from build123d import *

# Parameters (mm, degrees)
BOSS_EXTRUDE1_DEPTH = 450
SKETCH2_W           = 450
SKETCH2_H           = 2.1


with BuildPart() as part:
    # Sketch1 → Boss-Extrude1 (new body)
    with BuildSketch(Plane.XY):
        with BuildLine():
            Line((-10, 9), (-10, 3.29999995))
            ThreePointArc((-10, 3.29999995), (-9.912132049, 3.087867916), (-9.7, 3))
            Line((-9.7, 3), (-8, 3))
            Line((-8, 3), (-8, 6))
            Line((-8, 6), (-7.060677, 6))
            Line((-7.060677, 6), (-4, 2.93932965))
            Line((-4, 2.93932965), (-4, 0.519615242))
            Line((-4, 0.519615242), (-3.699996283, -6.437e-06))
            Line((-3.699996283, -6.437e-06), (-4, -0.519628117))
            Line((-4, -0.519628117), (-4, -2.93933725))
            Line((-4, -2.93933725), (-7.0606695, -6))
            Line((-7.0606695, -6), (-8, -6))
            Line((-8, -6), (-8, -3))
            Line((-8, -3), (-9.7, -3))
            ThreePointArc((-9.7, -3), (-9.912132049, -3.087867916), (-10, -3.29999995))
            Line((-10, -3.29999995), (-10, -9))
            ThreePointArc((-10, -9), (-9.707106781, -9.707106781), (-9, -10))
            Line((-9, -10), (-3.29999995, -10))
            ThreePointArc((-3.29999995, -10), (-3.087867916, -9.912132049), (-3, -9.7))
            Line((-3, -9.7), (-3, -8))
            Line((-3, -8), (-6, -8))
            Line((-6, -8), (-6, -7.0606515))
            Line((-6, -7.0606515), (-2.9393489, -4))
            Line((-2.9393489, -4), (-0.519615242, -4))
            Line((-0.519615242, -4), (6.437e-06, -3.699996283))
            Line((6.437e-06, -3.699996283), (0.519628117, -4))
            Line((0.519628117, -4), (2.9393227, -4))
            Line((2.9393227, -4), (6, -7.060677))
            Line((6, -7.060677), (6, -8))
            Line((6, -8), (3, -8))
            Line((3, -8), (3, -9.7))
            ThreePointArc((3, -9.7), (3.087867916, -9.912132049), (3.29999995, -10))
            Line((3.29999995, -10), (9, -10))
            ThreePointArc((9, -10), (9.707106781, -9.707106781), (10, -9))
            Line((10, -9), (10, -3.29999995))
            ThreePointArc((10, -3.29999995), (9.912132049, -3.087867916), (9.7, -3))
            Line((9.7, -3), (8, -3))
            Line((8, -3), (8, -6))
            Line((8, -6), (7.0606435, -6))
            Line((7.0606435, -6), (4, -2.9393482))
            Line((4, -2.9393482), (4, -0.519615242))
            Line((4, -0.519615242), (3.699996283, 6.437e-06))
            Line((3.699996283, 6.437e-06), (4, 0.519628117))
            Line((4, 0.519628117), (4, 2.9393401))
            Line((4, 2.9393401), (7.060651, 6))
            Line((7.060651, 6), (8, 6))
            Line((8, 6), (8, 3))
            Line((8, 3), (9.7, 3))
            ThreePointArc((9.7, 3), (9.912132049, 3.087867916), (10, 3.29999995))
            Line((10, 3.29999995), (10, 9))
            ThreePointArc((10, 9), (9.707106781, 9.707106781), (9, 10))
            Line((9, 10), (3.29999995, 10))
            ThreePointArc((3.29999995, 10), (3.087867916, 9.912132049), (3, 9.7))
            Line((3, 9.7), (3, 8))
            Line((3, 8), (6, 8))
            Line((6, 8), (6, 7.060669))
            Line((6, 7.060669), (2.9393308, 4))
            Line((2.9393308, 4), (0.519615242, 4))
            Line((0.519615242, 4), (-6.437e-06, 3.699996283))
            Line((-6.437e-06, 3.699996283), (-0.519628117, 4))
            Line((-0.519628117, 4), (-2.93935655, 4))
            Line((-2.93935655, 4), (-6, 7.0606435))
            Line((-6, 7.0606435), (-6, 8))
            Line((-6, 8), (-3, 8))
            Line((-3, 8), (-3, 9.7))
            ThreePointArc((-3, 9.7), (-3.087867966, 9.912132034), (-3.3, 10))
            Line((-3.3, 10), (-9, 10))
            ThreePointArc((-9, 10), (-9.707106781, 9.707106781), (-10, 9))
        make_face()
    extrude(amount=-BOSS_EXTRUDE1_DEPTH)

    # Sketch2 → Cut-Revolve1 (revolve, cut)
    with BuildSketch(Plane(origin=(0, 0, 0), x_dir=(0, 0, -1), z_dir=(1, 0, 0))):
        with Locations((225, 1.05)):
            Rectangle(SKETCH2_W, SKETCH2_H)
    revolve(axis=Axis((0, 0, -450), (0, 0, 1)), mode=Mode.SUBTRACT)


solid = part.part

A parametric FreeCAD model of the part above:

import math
import FreeCAD as App
import Part
import Sketcher
Q = App.Units.Quantity


def add_polygon(sketch, points):
    """Adds a closed chain of lines whose ends are joined by coincident constraints."""
    first, n = sketch.GeometryCount, len(points)
    for a, b in zip(points, points[1:] + points[:1]):
        sketch.addGeometry(Part.LineSegment(App.Vector(*a, 0), App.Vector(*b, 0)), False)
    for i in range(n):
        sketch.addConstraint(Sketcher.Constraint("Coincident", first + i, 2, first + (i + 1) % n, 1))

doc = App.newDocument("Part")
params = doc.addObject("Spreadsheet::Sheet", "Params")
for row, (alias, value) in enumerate([
    ("sketch1_radius", "1 mm"),
    ("sketch1_radius2", "0.3 mm"),
    ("sketch1_width", "3 mm"),
    ("sketch1_width2", "1.7 mm"),
    ("sketch1_width3", "5.7 mm"),
    ("pad1_length", "450 mm"),
    ("sketch2_height", "450 mm"),
    ("sketch2_width", "2.1 mm"),
    ("groove_angle", "360 deg"),
], start=1):
    params.set(f"A{row}", alias)
    params.set(f"B{row}", "=" + value)
    params.setAlias(f"B{row}", alias)

body = doc.addObject("PartDesign::Body", "Body")

# Sketch on XY plane
sketch1 = body.newObject("Sketcher::SketchObject", "Sketch")
sketch1.AttachmentSupport = (doc.getObject("XY_Plane"), [""])
sketch1.MapMode = "FlatFace"
sketch1.addGeometry([
    Part.LineSegment(App.Vector(-10, 9, 0), App.Vector(-10, 3.3, 0)),  # 0
    Part.ArcOfCircle(Part.Circle(App.Vector(-9.7, 3.3, 0), App.Vector(0, 0, 1), 0.3), math.radians(180), math.radians(270)),  # 1
    Part.LineSegment(App.Vector(-9.7, 3, 0), App.Vector(-8, 3, 0)),  # 2
    Part.LineSegment(App.Vector(-8, 3, 0), App.Vector(-8, 6, 0)),  # 3
    Part.LineSegment(App.Vector(-8, 6, 0), App.Vector(-7.06, 6, 0)),  # 4
    Part.LineSegment(App.Vector(-7.06, 6, 0), App.Vector(-4, 2.94, 0)),  # 5
    Part.LineSegment(App.Vector(-4, 2.94, 0), App.Vector(-4, 0.52, 0)),  # 6
    Part.LineSegment(App.Vector(-4, 0.52, 0), App.Vector(-3.7, 0, 0)),  # 7
    Part.LineSegment(App.Vector(-3.7, 0, 0), App.Vector(-4, -0.52, 0)),  # 8
    Part.LineSegment(App.Vector(-4, -0.52, 0), App.Vector(-4, -2.94, 0)),  # 9
    Part.LineSegment(App.Vector(-4, -2.94, 0), App.Vector(-7.06, -6, 0)),  # 10
    Part.LineSegment(App.Vector(-7.06, -6, 0), App.Vector(-8, -6, 0)),  # 11
    Part.LineSegment(App.Vector(-8, -6, 0), App.Vector(-8, -3, 0)),  # 12
    Part.LineSegment(App.Vector(-8, -3, 0), App.Vector(-9.7, -3, 0)),  # 13
    Part.ArcOfCircle(Part.Circle(App.Vector(-9.7, -3.3, 0), App.Vector(0, 0, 1), 0.3), math.radians(90), math.radians(180)),  # 14
    Part.LineSegment(App.Vector(-10, -3.3, 0), App.Vector(-10, -9, 0)),  # 15
    Part.ArcOfCircle(Part.Circle(App.Vector(-9, -9, 0), App.Vector(0, 0, 1), 1), math.radians(-180), math.radians(-90)),  # 16
    Part.LineSegment(App.Vector(-9, -10, 0), App.Vector(-3.3, -10, 0)),  # 17
    Part.ArcOfCircle(Part.Circle(App.Vector(-3.3, -9.7, 0), App.Vector(0, 0, 1), 0.3), math.radians(-90), math.radians(0)),  # 18
    Part.LineSegment(App.Vector(-3, -9.7, 0), App.Vector(-3, -8, 0)),  # 19
    Part.LineSegment(App.Vector(-3, -8, 0), App.Vector(-6, -8, 0)),  # 20
    Part.LineSegment(App.Vector(-6, -8, 0), App.Vector(-6, -7.06, 0)),  # 21
    Part.LineSegment(App.Vector(-6, -7.06, 0), App.Vector(-2.94, -4, 0)),  # 22
    Part.LineSegment(App.Vector(-2.94, -4, 0), App.Vector(-0.52, -4, 0)),  # 23
    Part.LineSegment(App.Vector(-0.52, -4, 0), App.Vector(0, -3.7, 0)),  # 24
    Part.LineSegment(App.Vector(0, -3.7, 0), App.Vector(0.52, -4, 0)),  # 25
    Part.LineSegment(App.Vector(0.52, -4, 0), App.Vector(2.94, -4, 0)),  # 26
    Part.LineSegment(App.Vector(2.94, -4, 0), App.Vector(6, -7.06, 0)),  # 27
    Part.LineSegment(App.Vector(6, -7.06, 0), App.Vector(6, -8, 0)),  # 28
    Part.LineSegment(App.Vector(6, -8, 0), App.Vector(3, -8, 0)),  # 29
    Part.LineSegment(App.Vector(3, -8, 0), App.Vector(3, -9.7, 0)),  # 30
    Part.ArcOfCircle(Part.Circle(App.Vector(3.3, -9.7, 0), App.Vector(0, 0, 1), 0.3), math.radians(180), math.radians(270)),  # 31
    Part.LineSegment(App.Vector(3.3, -10, 0), App.Vector(9, -10, 0)),  # 32
    Part.ArcOfCircle(Part.Circle(App.Vector(9, -9, 0), App.Vector(0, 0, 1), 1), math.radians(-90), math.radians(0)),  # 33
    Part.LineSegment(App.Vector(10, -9, 0), App.Vector(10, -3.3, 0)),  # 34
    Part.ArcOfCircle(Part.Circle(App.Vector(9.7, -3.3, 0), App.Vector(0, 0, 1), 0.3), math.radians(0), math.radians(90)),  # 35
    Part.LineSegment(App.Vector(9.7, -3, 0), App.Vector(8, -3, 0)),  # 36
    Part.LineSegment(App.Vector(8, -3, 0), App.Vector(8, -6, 0)),  # 37
    Part.LineSegment(App.Vector(8, -6, 0), App.Vector(7.06, -6, 0)),  # 38
    Part.LineSegment(App.Vector(7.06, -6, 0), App.Vector(4, -2.94, 0)),  # 39
    Part.LineSegment(App.Vector(4, -2.94, 0), App.Vector(4, -0.52, 0)),  # 40
    Part.LineSegment(App.Vector(4, -0.52, 0), App.Vector(3.7, 0, 0)),  # 41
    Part.LineSegment(App.Vector(3.7, 0, 0), App.Vector(4, 0.52, 0)),  # 42
    Part.LineSegment(App.Vector(4, 0.52, 0), App.Vector(4, 2.94, 0)),  # 43
    Part.LineSegment(App.Vector(4, 2.94, 0), App.Vector(7.06, 6, 0)),  # 44
    Part.LineSegment(App.Vector(7.06, 6, 0), App.Vector(8, 6, 0)),  # 45
    Part.LineSegment(App.Vector(8, 6, 0), App.Vector(8, 3, 0)),  # 46
    Part.LineSegment(App.Vector(8, 3, 0), App.Vector(9.7, 3, 0)),  # 47
    Part.ArcOfCircle(Part.Circle(App.Vector(9.7, 3.3, 0), App.Vector(0, 0, 1), 0.3), math.radians(-90), math.radians(0)),  # 48
    Part.LineSegment(App.Vector(10, 3.3, 0), App.Vector(10, 9, 0)),  # 49
    Part.ArcOfCircle(Part.Circle(App.Vector(9, 9, 0), App.Vector(0, 0, 1), 1), math.radians(0), math.radians(90)),  # 50
    Part.LineSegment(App.Vector(9, 10, 0), App.Vector(3.3, 10, 0)),  # 51
    Part.ArcOfCircle(Part.Circle(App.Vector(3.3, 9.7, 0), App.Vector(0, 0, 1), 0.3), math.radians(90), math.radians(180)),  # 52
    Part.LineSegment(App.Vector(3, 9.7, 0), App.Vector(3, 8, 0)),  # 53
    Part.LineSegment(App.Vector(3, 8, 0), App.Vector(6, 8, 0)),  # 54
    Part.LineSegment(App.Vector(6, 8, 0), App.Vector(6, 7.06, 0)),  # 55
    Part.LineSegment(App.Vector(6, 7.06, 0), App.Vector(2.94, 4, 0)),  # 56
    Part.LineSegment(App.Vector(2.94, 4, 0), App.Vector(0.52, 4, 0)),  # 57
    Part.LineSegment(App.Vector(0.52, 4, 0), App.Vector(0, 3.7, 0)),  # 58
    Part.LineSegment(App.Vector(0, 3.7, 0), App.Vector(-0.52, 4, 0)),  # 59
    Part.LineSegment(App.Vector(-0.52, 4, 0), App.Vector(-2.94, 4, 0)),  # 60
    Part.LineSegment(App.Vector(-2.94, 4, 0), App.Vector(-6, 7.06, 0)),  # 61
    Part.LineSegment(App.Vector(-6, 7.06, 0), App.Vector(-6, 8, 0)),  # 62
    Part.LineSegment(App.Vector(-6, 8, 0), App.Vector(-3, 8, 0)),  # 63
    Part.LineSegment(App.Vector(-3, 8, 0), App.Vector(-3, 9.7, 0)),  # 64
    Part.ArcOfCircle(Part.Circle(App.Vector(-3.3, 9.7, 0), App.Vector(0, 0, 1), 0.3), math.radians(0), math.radians(90)),  # 65
    Part.LineSegment(App.Vector(-3.3, 10, 0), App.Vector(-9, 10, 0)),  # 66
    Part.ArcOfCircle(Part.Circle(App.Vector(-9, 9, 0), App.Vector(0, 0, 1), 1), math.radians(90), math.radians(180)),  # 67
], False)
sketch1.addConstraint([
    Sketcher.Constraint("Tangent", 0, 2, 1, 1),
    Sketcher.Constraint("Tangent", 1, 2, 2, 1),
    Sketcher.Constraint("Coincident", 2, 2, 3, 1),
    Sketcher.Constraint("Coincident", 3, 2, 4, 1),
    Sketcher.Constraint("Coincident", 4, 2, 5, 1),
    Sketcher.Constraint("Coincident", 5, 2, 6, 1),
    Sketcher.Constraint("Coincident", 6, 2, 7, 1),
    Sketcher.Constraint("Coincident", 7, 2, 8, 1),
    Sketcher.Constraint("Coincident", 8, 2, 9, 1),
    Sketcher.Constraint("Coincident", 9, 2, 10, 1),
    Sketcher.Constraint("Coincident", 10, 2, 11, 1),
    Sketcher.Constraint("Coincident", 11, 2, 12, 1),
    Sketcher.Constraint("Coincident", 12, 2, 13, 1),
    Sketcher.Constraint("Tangent", 13, 2, 14, 1),
    Sketcher.Constraint("Tangent", 14, 2, 15, 1),
    Sketcher.Constraint("Tangent", 15, 2, 16, 1),
    Sketcher.Constraint("Tangent", 16, 2, 17, 1),
    Sketcher.Constraint("Tangent", 17, 2, 18, 1),
    Sketcher.Constraint("Tangent", 18, 2, 19, 1),
    Sketcher.Constraint("Coincident", 19, 2, 20, 1),
    Sketcher.Constraint("Coincident", 20, 2, 21, 1),
    Sketcher.Constraint("Coincident", 21, 2, 22, 1),
    Sketcher.Constraint("Coincident", 22, 2, 23, 1),
    Sketcher.Constraint("Coincident", 23, 2, 24, 1),
    Sketcher.Constraint("Coincident", 24, 2, 25, 1),
    Sketcher.Constraint("Coincident", 25, 2, 26, 1),
    Sketcher.Constraint("Coincident", 26, 2, 27, 1),
    Sketcher.Constraint("Coincident", 27, 2, 28, 1),
    Sketcher.Constraint("Coincident", 28, 2, 29, 1),
    Sketcher.Constraint("Coincident", 29, 2, 30, 1),
    Sketcher.Constraint("Tangent", 30, 2, 31, 1),
    Sketcher.Constraint("Tangent", 31, 2, 32, 1),
    Sketcher.Constraint("Tangent", 32, 2, 33, 1),
    Sketcher.Constraint("Tangent", 33, 2, 34, 1),
    Sketcher.Constraint("Tangent", 34, 2, 35, 1),
    Sketcher.Constraint("Tangent", 35, 2, 36, 1),
    Sketcher.Constraint("Coincident", 36, 2, 37, 1),
    Sketcher.Constraint("Coincident", 37, 2, 38, 1),
    Sketcher.Constraint("Coincident", 38, 2, 39, 1),
    Sketcher.Constraint("Coincident", 39, 2, 40, 1),
    Sketcher.Constraint("Coincident", 40, 2, 41, 1),
    Sketcher.Constraint("Coincident", 41, 2, 42, 1),
    Sketcher.Constraint("Coincident", 42, 2, 43, 1),
    Sketcher.Constraint("Coincident", 43, 2, 44, 1),
    Sketcher.Constraint("Coincident", 44, 2, 45, 1),
    Sketcher.Constraint("Coincident", 45, 2, 46, 1),
    Sketcher.Constraint("Coincident", 46, 2, 47, 1),
    Sketcher.Constraint("Tangent", 47, 2, 48, 1),
    Sketcher.Constraint("Tangent", 48, 2, 49, 1),
    Sketcher.Constraint("Tangent", 49, 2, 50, 1),
    Sketcher.Constraint("Tangent", 50, 2, 51, 1),
    Sketcher.Constraint("Tangent", 51, 2, 52, 1),
    Sketcher.Constraint("Tangent", 52, 2, 53, 1),
    Sketcher.Constraint("Coincident", 53, 2, 54, 1),
    Sketcher.Constraint("Coincident", 54, 2, 55, 1),
    Sketcher.Constraint("Coincident", 55, 2, 56, 1),
    Sketcher.Constraint("Coincident", 56, 2, 57, 1),
    Sketcher.Constraint("Coincident", 57, 2, 58, 1),
    Sketcher.Constraint("Coincident", 58, 2, 59, 1),
    Sketcher.Constraint("Coincident", 59, 2, 60, 1),
    Sketcher.Constraint("Coincident", 60, 2, 61, 1),
    Sketcher.Constraint("Coincident", 61, 2, 62, 1),
    Sketcher.Constraint("Coincident", 62, 2, 63, 1),
    Sketcher.Constraint("Coincident", 63, 2, 64, 1),
    Sketcher.Constraint("Tangent", 64, 2, 65, 1),
    Sketcher.Constraint("Tangent", 65, 2, 66, 1),
    Sketcher.Constraint("Tangent", 66, 2, 67, 1),
    Sketcher.Constraint("Tangent", 67, 2, 0, 1),
    Sketcher.Constraint("Vertical", 0),
    Sketcher.Constraint("Horizontal", 2),
    Sketcher.Constraint("Vertical", 3),
    Sketcher.Constraint("Horizontal", 4),
    Sketcher.Constraint("Vertical", 6),
    Sketcher.Constraint("Vertical", 9),
    Sketcher.Constraint("Horizontal", 11),
    Sketcher.Constraint("Vertical", 12),
    Sketcher.Constraint("Horizontal", 13),
    Sketcher.Constraint("Vertical", 15),
    Sketcher.Constraint("Horizontal", 17),
    Sketcher.Constraint("Vertical", 19),
    Sketcher.Constraint("Horizontal", 20),
    Sketcher.Constraint("Vertical", 21),
    Sketcher.Constraint("Horizontal", 23),
    Sketcher.Constraint("Horizontal", 26),
    Sketcher.Constraint("Vertical", 28),
    Sketcher.Constraint("Horizontal", 29),
    Sketcher.Constraint("Vertical", 30),
    Sketcher.Constraint("Horizontal", 32),
    Sketcher.Constraint("Vertical", 34),
    Sketcher.Constraint("Horizontal", 36),
    Sketcher.Constraint("Vertical", 37),
    Sketcher.Constraint("Horizontal", 38),
    Sketcher.Constraint("Vertical", 40),
    Sketcher.Constraint("Vertical", 43),
    Sketcher.Constraint("Horizontal", 45),
    Sketcher.Constraint("Vertical", 46),
    Sketcher.Constraint("Horizontal", 47),
    Sketcher.Constraint("Vertical", 49),
    Sketcher.Constraint("Horizontal", 51),
    Sketcher.Constraint("Vertical", 53),
    Sketcher.Constraint("Horizontal", 54),
    Sketcher.Constraint("Vertical", 55),
    Sketcher.Constraint("Horizontal", 57),
    Sketcher.Constraint("Horizontal", 60),
    Sketcher.Constraint("Vertical", 62),
    Sketcher.Constraint("Horizontal", 63),
    Sketcher.Constraint("Vertical", 64),
    Sketcher.Constraint("Horizontal", 66),
    Sketcher.Constraint("Equal", 1, 14),
    Sketcher.Constraint("Equal", 14, 18),
    Sketcher.Constraint("Equal", 18, 31),
    Sketcher.Constraint("Equal", 16, 33),
    Sketcher.Constraint("Equal", 31, 35),
    Sketcher.Constraint("Equal", 35, 48),
    Sketcher.Constraint("Equal", 33, 50),
    Sketcher.Constraint("Equal", 48, 52),
    Sketcher.Constraint("Equal", 52, 65),
    Sketcher.Constraint("Equal", 50, 67),
    Sketcher.Constraint("Symmetric", 1, 3, 35, 3, -1, 1),
    Sketcher.Constraint("Symmetric", 14, 3, 48, 3, -1, 1),
    Sketcher.Constraint("Symmetric", 18, 3, 52, 3, -1, 1),
    Sketcher.Constraint("Symmetric", 31, 3, 65, 3, -1, 1),
    Sketcher.Constraint("Symmetric", 3, 2, 37, 2, -1, 1),
    Sketcher.Constraint("Symmetric", 6, 2, 40, 2, -1, 1),
    Sketcher.Constraint("Symmetric", 7, 2, 41, 2, -1, 1),
    Sketcher.Constraint("Symmetric", 8, 2, 42, 2, -1, 1),
    Sketcher.Constraint("Symmetric", 11, 2, 45, 2, -1, 1),
    Sketcher.Constraint("Symmetric", 20, 2, 54, 2, -1, 1),
    Sketcher.Constraint("Symmetric", 23, 2, 57, 2, -1, 1),
    Sketcher.Constraint("Symmetric", 24, 2, 58, 2, -1, 1),
    Sketcher.Constraint("Symmetric", 25, 2, 59, 2, -1, 1),
    Sketcher.Constraint("Symmetric", 28, 2, 62, 2, -1, 1),
    Sketcher.Constraint("Symmetric", 18, 3, 31, 3, -2),
    Sketcher.Constraint("Symmetric", 14, 3, 35, 3, -2),
    Sketcher.Constraint("Symmetric", 20, 2, 28, 2, -2),
    Sketcher.Constraint("Symmetric", 11, 2, 37, 2, -2),
    Sketcher.Constraint("Symmetric", 5, 2, 9, 2, -1),
    Sketcher.Constraint("Symmetric", 26, 2, 56, 2, -1),
    Sketcher.Constraint("Parallel", 10, 22),
    Sketcher.Constraint("Perpendicular", 7, 24),
    Sketcher.Constraint("Perpendicular", 8, 25),
    Sketcher.Constraint("Perpendicular", 22, 27),
    Sketcher.Constraint("Parallel", 27, 39),
    Sketcher.Constraint("Perpendicular", 27, 44),
    Sketcher.Constraint("Parallel", 44, 56),
    Sketcher.Constraint("Perpendicular", 56, 61),
    Sketcher.Constraint("Equal", 66, 0),
    Sketcher.Constraint("Equal", 63, 3),
    Sketcher.Constraint("Equal", 57, 6),
    Sketcher.Constraint("Equal", 47, 19),
    Sketcher.Constraint("Equal", 45, 21),
    Sketcher.Constraint("Equal", 4, 28),
    Sketcher.Constraint("Equal", 23, 40),
    Sketcher.Constraint("Equal", 11, 55),
    Sketcher.Constraint("Equal", 38, 62),
    Sketcher.Constraint("Equal", 7, 8),
    Sketcher.Constraint("Equal", 8, 24),
    Sketcher.Constraint("Radius", 16, 1.0),
    Sketcher.Constraint("Radius", 1, 0.3),
    Sketcher.Constraint("DistanceX", 20, 2, 20, 1, 3.0),
    Sketcher.Constraint("Angle", 7, Q("-60 deg")),
    Sketcher.Constraint("Angle", 22, Q("45.000004 deg")),
    Sketcher.Constraint("DistanceX", 2, 1, 2, 2, 1.7),
    Sketcher.Constraint("DistanceX", 17, 1, 17, 2, 5.7),
    Sketcher.Constraint("DistanceX", 16, 3, -1, 1, 9.0),
    Sketcher.Constraint("DistanceY", 16, 3, -1, 1, 9.0),
    Sketcher.Constraint("DistanceX", 5, 2, -1, 1, 4.0),
    Sketcher.Constraint("DistanceY", 22, 2, -1, 1, 4.0),
    Sketcher.Constraint("DistanceX", 11, 2, 11, 1, 0.93933),
    Sketcher.Constraint("DistanceX", 45, 1, 45, 2, 0.939349),
    Sketcher.Constraint("DistanceX", 60, 2, 60, 1, 2.419728),
    Sketcher.Constraint("DistanceX", 23, 1, 23, 2, 2.419734),
])
sketch1.setExpression("Constraints[157]", "Params.sketch1_radius")
sketch1.setExpression("Constraints[158]", "Params.sketch1_radius2")
sketch1.setExpression("Constraints[159]", "Params.sketch1_width")
sketch1.setExpression("Constraints[162]", "Params.sketch1_width2")
sketch1.setExpression("Constraints[163]", "Params.sketch1_width3")
pad1 = body.newObject("PartDesign::Pad", "Pad")
pad1.Profile = sketch1
pad1.setExpression("Length", "Params.pad1_length")
pad1.Reversed = True

# Sketch on YZ plane
sketch2 = body.newObject("Sketcher::SketchObject", "Sketch001")
sketch2.AttachmentSupport = (doc.getObject("YZ_Plane"), [""])
sketch2.MapMode = "FlatFace"
add_polygon(sketch2, [(2.1, 0), (0, 0), (0, -450), (2.1, -450)])  # lines 0-3
sketch2.addConstraint([
    Sketcher.Constraint("Horizontal", 0),
    Sketcher.Constraint("Vertical", 1),
    Sketcher.Constraint("Horizontal", 2),
    Sketcher.Constraint("Vertical", 3),
    Sketcher.Constraint("Coincident", 0, 2, -1, 1),
    Sketcher.Constraint("DistanceY", 1, 2, 1, 1, 450.0),
    Sketcher.Constraint("DistanceX", 0, 2, 0, 1, 2.1),
])
sketch2.setExpression("Constraints[9]", "Params.sketch2_height")
sketch2.setExpression("Constraints[10]", "Params.sketch2_width")
groove = body.newObject("PartDesign::Groove", "Groove")
groove.Profile = sketch2
groove.ReferenceAxis = (sketch2, ["V_Axis"])
groove.setExpression("Angle", "Params.groove_angle")

doc.recompute()
